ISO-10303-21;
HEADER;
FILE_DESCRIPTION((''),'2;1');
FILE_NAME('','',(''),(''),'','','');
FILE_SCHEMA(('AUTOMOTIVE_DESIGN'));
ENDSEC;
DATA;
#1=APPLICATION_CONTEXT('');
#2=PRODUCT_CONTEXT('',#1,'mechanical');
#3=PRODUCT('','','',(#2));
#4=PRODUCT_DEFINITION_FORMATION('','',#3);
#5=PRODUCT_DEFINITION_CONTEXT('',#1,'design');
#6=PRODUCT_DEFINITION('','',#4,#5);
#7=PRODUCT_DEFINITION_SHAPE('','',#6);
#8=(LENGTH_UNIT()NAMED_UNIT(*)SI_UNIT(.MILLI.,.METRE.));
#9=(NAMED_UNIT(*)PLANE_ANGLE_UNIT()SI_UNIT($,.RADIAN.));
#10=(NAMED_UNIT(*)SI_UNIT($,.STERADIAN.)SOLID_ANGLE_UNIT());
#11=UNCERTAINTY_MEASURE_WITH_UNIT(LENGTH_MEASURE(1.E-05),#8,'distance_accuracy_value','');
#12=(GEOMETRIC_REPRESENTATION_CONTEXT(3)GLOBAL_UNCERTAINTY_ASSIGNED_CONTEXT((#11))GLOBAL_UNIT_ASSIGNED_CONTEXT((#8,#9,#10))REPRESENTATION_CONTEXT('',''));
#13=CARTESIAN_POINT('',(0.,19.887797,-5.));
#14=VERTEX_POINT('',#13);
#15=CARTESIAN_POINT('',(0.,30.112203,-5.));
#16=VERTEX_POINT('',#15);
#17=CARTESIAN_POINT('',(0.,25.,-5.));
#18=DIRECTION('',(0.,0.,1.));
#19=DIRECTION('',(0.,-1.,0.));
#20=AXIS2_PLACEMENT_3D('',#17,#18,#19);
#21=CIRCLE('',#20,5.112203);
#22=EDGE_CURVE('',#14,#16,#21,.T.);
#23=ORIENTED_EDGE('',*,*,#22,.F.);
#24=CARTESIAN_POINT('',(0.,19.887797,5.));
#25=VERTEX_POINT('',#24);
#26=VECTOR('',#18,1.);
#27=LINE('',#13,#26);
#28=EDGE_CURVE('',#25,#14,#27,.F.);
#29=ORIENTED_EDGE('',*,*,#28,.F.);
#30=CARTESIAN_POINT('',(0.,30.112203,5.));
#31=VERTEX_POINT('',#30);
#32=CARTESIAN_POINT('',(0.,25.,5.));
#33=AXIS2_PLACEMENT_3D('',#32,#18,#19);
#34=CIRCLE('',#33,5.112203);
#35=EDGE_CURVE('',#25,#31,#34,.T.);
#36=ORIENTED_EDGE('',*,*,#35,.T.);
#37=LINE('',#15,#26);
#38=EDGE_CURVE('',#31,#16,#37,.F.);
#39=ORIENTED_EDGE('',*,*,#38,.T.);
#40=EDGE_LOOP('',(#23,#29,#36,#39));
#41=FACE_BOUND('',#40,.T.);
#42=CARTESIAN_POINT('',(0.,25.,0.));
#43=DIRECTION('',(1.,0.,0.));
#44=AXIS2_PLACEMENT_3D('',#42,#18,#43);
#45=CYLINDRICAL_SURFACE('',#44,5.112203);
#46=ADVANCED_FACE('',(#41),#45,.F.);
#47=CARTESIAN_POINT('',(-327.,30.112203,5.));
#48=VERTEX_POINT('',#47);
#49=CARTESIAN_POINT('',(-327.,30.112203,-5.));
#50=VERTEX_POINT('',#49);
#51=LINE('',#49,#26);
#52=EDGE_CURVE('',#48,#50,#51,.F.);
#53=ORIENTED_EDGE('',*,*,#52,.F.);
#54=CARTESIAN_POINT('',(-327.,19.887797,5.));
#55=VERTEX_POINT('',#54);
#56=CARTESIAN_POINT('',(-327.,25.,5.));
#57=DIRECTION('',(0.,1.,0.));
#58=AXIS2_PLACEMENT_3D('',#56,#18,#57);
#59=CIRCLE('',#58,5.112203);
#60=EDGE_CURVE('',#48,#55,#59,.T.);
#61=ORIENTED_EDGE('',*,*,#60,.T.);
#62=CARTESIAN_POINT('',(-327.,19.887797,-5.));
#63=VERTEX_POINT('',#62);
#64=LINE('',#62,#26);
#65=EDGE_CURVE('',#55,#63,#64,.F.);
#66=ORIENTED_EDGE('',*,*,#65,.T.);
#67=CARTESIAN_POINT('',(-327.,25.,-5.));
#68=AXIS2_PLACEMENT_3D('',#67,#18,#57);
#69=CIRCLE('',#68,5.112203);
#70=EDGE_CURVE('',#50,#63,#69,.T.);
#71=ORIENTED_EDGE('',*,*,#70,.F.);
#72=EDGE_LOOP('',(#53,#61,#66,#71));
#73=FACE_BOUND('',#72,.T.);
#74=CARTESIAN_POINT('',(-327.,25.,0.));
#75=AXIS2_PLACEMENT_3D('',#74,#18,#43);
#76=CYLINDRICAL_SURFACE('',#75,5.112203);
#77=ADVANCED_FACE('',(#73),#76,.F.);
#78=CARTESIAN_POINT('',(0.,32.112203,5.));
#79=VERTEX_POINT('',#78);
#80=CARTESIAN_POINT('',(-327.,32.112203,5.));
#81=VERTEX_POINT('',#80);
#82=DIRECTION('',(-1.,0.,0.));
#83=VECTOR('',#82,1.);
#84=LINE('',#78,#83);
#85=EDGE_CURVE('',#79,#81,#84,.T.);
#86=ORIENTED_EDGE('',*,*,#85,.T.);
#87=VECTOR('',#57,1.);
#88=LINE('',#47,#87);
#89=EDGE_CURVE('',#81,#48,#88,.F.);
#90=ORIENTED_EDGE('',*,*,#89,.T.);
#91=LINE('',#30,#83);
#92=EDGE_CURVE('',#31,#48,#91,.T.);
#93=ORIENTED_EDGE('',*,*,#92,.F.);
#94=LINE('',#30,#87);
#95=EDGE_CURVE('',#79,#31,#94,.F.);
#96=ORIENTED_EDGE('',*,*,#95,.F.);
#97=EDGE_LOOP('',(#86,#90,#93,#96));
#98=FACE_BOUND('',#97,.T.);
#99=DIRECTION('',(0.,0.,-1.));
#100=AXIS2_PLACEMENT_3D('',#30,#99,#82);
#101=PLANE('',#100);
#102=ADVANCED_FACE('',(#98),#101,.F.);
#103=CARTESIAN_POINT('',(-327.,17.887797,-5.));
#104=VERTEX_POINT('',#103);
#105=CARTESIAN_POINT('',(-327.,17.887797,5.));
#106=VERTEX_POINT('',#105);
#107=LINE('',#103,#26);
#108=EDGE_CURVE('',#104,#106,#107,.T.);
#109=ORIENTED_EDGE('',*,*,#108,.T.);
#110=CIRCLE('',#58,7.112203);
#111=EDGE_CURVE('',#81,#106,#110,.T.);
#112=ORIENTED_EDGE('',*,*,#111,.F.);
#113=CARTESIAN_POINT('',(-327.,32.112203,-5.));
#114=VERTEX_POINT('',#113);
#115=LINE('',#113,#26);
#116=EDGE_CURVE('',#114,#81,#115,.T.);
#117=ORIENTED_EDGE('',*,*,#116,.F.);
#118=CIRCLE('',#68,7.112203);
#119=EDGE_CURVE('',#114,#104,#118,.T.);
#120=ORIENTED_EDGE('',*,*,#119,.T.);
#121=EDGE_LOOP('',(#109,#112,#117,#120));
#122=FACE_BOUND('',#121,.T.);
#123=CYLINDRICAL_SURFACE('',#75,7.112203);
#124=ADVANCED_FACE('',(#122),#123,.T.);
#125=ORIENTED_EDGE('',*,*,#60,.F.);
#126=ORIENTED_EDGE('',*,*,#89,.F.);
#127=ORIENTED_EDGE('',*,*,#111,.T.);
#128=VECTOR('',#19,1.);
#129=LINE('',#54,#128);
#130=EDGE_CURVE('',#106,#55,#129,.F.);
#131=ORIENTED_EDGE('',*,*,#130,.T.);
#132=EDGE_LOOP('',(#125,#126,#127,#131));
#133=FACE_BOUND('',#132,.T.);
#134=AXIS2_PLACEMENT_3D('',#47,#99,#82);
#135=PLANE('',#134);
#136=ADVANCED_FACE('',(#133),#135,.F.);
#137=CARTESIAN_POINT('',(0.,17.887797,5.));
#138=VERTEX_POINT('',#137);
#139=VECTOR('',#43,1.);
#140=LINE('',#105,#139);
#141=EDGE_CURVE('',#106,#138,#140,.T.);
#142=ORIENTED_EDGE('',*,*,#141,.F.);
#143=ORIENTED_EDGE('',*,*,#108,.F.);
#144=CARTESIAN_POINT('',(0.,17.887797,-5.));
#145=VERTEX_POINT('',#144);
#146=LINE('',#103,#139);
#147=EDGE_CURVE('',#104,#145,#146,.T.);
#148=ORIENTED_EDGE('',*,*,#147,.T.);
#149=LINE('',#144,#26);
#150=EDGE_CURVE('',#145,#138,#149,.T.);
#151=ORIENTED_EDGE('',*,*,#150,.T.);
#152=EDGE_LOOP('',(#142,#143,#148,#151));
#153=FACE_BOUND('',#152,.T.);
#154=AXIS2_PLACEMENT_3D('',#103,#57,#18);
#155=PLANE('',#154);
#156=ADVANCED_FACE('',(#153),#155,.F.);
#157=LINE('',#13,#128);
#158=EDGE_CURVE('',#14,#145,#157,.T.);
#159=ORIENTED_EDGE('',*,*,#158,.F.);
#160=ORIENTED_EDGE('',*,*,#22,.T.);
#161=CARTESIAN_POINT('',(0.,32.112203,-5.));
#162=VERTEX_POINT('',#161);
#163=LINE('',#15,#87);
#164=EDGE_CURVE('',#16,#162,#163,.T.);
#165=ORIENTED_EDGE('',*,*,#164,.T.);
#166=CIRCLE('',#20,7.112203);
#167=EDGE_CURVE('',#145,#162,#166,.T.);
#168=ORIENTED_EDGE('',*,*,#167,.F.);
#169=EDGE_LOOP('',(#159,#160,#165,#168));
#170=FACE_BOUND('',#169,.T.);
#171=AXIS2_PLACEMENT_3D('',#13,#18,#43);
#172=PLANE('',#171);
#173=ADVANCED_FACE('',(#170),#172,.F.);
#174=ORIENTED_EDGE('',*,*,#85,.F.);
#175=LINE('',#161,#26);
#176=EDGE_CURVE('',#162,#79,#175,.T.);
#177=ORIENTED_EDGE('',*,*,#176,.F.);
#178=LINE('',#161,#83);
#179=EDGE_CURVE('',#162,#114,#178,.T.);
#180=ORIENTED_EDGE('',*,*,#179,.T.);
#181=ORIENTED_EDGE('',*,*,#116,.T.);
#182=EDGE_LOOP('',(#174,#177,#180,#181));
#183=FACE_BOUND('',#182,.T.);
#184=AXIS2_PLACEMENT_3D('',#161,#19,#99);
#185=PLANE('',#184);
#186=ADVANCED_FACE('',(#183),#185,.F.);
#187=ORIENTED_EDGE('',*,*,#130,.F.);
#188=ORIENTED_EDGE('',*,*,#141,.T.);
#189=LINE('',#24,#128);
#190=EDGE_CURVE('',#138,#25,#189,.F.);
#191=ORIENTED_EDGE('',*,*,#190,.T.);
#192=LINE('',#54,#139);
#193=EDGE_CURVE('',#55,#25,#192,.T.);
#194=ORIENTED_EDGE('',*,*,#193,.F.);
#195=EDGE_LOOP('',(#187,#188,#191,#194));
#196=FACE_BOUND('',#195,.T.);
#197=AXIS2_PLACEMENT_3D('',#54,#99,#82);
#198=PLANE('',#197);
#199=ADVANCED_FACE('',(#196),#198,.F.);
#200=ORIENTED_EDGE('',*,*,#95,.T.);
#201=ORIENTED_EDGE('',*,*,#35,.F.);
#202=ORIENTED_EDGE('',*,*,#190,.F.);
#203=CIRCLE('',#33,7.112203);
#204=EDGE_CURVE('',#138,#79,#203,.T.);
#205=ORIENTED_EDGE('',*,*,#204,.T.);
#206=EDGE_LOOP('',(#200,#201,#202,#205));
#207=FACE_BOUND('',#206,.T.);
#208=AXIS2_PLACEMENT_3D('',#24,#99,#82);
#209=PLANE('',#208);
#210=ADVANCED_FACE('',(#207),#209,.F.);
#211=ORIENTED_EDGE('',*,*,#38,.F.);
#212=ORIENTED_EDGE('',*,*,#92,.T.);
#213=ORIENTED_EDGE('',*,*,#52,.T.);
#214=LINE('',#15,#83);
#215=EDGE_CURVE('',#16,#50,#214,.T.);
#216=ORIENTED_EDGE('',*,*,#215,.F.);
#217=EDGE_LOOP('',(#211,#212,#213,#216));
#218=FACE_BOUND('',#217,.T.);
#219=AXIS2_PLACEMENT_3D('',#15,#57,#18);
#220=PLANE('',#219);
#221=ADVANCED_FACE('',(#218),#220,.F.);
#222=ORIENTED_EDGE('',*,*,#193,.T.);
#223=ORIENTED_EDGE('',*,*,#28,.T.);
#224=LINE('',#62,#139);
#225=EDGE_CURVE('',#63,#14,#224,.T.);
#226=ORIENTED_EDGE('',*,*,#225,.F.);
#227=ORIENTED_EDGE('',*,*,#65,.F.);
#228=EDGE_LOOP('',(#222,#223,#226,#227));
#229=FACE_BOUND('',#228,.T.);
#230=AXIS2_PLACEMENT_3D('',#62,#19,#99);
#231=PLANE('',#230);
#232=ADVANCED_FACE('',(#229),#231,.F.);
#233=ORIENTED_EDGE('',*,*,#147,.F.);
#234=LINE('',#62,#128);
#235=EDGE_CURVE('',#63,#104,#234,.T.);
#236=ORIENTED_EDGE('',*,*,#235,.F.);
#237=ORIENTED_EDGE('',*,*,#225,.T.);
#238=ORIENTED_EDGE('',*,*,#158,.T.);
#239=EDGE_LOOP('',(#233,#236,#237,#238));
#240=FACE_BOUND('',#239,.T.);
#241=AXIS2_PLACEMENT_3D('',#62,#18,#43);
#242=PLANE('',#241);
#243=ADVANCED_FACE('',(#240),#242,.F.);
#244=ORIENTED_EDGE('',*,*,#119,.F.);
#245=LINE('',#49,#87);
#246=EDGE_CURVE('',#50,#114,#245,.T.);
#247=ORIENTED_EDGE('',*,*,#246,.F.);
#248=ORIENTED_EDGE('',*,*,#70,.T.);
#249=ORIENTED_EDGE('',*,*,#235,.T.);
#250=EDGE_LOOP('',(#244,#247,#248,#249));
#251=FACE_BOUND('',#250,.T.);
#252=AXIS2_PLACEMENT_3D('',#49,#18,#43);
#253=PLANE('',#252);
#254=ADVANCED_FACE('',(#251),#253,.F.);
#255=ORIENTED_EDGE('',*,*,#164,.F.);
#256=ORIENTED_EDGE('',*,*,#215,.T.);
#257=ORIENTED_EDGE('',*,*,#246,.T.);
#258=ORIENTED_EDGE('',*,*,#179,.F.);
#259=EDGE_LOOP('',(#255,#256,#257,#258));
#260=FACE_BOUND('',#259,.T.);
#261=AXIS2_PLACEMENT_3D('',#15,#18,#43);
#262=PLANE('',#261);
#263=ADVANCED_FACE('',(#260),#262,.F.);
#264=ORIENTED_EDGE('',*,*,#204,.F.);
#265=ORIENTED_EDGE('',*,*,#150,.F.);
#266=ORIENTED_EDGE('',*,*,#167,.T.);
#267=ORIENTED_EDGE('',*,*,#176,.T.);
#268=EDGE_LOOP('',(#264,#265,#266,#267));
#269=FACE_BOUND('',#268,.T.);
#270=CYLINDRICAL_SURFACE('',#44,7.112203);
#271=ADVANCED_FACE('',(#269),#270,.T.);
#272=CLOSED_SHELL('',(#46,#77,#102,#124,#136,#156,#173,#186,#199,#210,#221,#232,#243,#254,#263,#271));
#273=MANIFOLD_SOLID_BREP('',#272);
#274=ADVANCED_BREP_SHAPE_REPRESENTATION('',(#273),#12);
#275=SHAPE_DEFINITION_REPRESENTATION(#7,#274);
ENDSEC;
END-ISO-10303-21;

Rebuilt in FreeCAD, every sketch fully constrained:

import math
import FreeCAD as App
import Part
import Sketcher
from FreeCAD import Vector
Q = App.Units.Quantity

doc = App.newDocument("Part")
body = doc.addObject("PartDesign::Body", "Body")

# Sketch on YZ plane
sketch1 = body.newObject("Sketcher::SketchObject", "Sketch")
sketch1.AttachmentSupport = (doc.getObject("YZ_Plane"), [""])
sketch1.MapMode = "FlatFace"
sketch1.addGeometry([
    Part.LineSegment(Vector(32.112203, 5, 0), Vector(30.112203, 5, 0)),
    Part.LineSegment(Vector(30.112203, 5, 0), Vector(30.112203, -5, 0)),
    Part.LineSegment(Vector(30.112203, -5, 0), Vector(32.112203, -5, 0)),
    Part.LineSegment(Vector(32.112203, -5, 0), Vector(32.112203, 5, 0)),
], False)
sketch1.addConstraint([
    Sketcher.Constraint("Coincident", 0, 2, 1, 1),
    Sketcher.Constraint("Coincident", 1, 2, 2, 1),
    Sketcher.Constraint("Coincident", 2, 2, 3, 1),
    Sketcher.Constraint("Coincident", 3, 2, 0, 1),
    Sketcher.Constraint("Horizontal", 0),
    Sketcher.Constraint("Vertical", 1),
    Sketcher.Constraint("Horizontal", 2),
    Sketcher.Constraint("Vertical", 3),
    Sketcher.Constraint("DistanceX", 0, 2, 0, 1, Q("2 mm")),
    Sketcher.Constraint("DistanceY", 1, 2, 1, 1, Q("10 mm")),
    Sketcher.Constraint("DistanceY", -1, 1, 0, 2, Q("5 mm")),
    Sketcher.Constraint("DistanceX", -1, 1, 0, 2, Q("30.112203 mm")),
])

# Sketch on XY plane
sketch2 = body.newObject("Sketcher::SketchObject", "Sketch001")
sketch2.AttachmentSupport = (doc.getObject("XY_Plane"), [""])
sketch2.MapMode = "FlatFace"
sketch2.addGeometry([
    Part.LineSegment(Vector(0, 18.887797, 0), Vector(-327, 18.887797, 0)),
    Part.ArcOfCircle(Part.Circle(Vector(-327, 25, 0), Vector(0, 0, 1), 6.112203), math.radians(90), math.radians(270)),
    Part.LineSegment(Vector(-327, 31.112203, 0), Vector(0, 31.112203, 0)),
    Part.ArcOfCircle(Part.Circle(Vector(0, 25, 0), Vector(0, 0, 1), 6.112203), math.radians(-90), math.radians(90)),
], False)
sketch2.addConstraint([
    Sketcher.Constraint("Tangent", 0, 2, 1, 2),
    Sketcher.Constraint("Tangent", 1, 1, 2, 1),
    Sketcher.Constraint("Tangent", 2, 2, 3, 2),
    Sketcher.Constraint("Tangent", 3, 1, 0, 1),
    Sketcher.Constraint("Horizontal", 0),
    Sketcher.Constraint("Horizontal", 2),
    Sketcher.Constraint("PointOnObject", 3, 3, -2),
    Sketcher.Constraint("DistanceX", 0, 2, 0, 1, Q("327 mm")),
    Sketcher.Constraint("DistanceY", -1, 1, 1, 3, Q("25 mm")),
    Sketcher.Constraint("Radius", 1, Q("6.112203 mm")),
])
doc.recompute()

additivepipe = body.newObject("PartDesign::AdditivePipe", "AdditivePipe")
additivepipe.Profile = sketch1
additivepipe.Spine = (sketch2, ["Edge1", "Edge2", "Edge3", "Edge4"])

doc.recompute()
